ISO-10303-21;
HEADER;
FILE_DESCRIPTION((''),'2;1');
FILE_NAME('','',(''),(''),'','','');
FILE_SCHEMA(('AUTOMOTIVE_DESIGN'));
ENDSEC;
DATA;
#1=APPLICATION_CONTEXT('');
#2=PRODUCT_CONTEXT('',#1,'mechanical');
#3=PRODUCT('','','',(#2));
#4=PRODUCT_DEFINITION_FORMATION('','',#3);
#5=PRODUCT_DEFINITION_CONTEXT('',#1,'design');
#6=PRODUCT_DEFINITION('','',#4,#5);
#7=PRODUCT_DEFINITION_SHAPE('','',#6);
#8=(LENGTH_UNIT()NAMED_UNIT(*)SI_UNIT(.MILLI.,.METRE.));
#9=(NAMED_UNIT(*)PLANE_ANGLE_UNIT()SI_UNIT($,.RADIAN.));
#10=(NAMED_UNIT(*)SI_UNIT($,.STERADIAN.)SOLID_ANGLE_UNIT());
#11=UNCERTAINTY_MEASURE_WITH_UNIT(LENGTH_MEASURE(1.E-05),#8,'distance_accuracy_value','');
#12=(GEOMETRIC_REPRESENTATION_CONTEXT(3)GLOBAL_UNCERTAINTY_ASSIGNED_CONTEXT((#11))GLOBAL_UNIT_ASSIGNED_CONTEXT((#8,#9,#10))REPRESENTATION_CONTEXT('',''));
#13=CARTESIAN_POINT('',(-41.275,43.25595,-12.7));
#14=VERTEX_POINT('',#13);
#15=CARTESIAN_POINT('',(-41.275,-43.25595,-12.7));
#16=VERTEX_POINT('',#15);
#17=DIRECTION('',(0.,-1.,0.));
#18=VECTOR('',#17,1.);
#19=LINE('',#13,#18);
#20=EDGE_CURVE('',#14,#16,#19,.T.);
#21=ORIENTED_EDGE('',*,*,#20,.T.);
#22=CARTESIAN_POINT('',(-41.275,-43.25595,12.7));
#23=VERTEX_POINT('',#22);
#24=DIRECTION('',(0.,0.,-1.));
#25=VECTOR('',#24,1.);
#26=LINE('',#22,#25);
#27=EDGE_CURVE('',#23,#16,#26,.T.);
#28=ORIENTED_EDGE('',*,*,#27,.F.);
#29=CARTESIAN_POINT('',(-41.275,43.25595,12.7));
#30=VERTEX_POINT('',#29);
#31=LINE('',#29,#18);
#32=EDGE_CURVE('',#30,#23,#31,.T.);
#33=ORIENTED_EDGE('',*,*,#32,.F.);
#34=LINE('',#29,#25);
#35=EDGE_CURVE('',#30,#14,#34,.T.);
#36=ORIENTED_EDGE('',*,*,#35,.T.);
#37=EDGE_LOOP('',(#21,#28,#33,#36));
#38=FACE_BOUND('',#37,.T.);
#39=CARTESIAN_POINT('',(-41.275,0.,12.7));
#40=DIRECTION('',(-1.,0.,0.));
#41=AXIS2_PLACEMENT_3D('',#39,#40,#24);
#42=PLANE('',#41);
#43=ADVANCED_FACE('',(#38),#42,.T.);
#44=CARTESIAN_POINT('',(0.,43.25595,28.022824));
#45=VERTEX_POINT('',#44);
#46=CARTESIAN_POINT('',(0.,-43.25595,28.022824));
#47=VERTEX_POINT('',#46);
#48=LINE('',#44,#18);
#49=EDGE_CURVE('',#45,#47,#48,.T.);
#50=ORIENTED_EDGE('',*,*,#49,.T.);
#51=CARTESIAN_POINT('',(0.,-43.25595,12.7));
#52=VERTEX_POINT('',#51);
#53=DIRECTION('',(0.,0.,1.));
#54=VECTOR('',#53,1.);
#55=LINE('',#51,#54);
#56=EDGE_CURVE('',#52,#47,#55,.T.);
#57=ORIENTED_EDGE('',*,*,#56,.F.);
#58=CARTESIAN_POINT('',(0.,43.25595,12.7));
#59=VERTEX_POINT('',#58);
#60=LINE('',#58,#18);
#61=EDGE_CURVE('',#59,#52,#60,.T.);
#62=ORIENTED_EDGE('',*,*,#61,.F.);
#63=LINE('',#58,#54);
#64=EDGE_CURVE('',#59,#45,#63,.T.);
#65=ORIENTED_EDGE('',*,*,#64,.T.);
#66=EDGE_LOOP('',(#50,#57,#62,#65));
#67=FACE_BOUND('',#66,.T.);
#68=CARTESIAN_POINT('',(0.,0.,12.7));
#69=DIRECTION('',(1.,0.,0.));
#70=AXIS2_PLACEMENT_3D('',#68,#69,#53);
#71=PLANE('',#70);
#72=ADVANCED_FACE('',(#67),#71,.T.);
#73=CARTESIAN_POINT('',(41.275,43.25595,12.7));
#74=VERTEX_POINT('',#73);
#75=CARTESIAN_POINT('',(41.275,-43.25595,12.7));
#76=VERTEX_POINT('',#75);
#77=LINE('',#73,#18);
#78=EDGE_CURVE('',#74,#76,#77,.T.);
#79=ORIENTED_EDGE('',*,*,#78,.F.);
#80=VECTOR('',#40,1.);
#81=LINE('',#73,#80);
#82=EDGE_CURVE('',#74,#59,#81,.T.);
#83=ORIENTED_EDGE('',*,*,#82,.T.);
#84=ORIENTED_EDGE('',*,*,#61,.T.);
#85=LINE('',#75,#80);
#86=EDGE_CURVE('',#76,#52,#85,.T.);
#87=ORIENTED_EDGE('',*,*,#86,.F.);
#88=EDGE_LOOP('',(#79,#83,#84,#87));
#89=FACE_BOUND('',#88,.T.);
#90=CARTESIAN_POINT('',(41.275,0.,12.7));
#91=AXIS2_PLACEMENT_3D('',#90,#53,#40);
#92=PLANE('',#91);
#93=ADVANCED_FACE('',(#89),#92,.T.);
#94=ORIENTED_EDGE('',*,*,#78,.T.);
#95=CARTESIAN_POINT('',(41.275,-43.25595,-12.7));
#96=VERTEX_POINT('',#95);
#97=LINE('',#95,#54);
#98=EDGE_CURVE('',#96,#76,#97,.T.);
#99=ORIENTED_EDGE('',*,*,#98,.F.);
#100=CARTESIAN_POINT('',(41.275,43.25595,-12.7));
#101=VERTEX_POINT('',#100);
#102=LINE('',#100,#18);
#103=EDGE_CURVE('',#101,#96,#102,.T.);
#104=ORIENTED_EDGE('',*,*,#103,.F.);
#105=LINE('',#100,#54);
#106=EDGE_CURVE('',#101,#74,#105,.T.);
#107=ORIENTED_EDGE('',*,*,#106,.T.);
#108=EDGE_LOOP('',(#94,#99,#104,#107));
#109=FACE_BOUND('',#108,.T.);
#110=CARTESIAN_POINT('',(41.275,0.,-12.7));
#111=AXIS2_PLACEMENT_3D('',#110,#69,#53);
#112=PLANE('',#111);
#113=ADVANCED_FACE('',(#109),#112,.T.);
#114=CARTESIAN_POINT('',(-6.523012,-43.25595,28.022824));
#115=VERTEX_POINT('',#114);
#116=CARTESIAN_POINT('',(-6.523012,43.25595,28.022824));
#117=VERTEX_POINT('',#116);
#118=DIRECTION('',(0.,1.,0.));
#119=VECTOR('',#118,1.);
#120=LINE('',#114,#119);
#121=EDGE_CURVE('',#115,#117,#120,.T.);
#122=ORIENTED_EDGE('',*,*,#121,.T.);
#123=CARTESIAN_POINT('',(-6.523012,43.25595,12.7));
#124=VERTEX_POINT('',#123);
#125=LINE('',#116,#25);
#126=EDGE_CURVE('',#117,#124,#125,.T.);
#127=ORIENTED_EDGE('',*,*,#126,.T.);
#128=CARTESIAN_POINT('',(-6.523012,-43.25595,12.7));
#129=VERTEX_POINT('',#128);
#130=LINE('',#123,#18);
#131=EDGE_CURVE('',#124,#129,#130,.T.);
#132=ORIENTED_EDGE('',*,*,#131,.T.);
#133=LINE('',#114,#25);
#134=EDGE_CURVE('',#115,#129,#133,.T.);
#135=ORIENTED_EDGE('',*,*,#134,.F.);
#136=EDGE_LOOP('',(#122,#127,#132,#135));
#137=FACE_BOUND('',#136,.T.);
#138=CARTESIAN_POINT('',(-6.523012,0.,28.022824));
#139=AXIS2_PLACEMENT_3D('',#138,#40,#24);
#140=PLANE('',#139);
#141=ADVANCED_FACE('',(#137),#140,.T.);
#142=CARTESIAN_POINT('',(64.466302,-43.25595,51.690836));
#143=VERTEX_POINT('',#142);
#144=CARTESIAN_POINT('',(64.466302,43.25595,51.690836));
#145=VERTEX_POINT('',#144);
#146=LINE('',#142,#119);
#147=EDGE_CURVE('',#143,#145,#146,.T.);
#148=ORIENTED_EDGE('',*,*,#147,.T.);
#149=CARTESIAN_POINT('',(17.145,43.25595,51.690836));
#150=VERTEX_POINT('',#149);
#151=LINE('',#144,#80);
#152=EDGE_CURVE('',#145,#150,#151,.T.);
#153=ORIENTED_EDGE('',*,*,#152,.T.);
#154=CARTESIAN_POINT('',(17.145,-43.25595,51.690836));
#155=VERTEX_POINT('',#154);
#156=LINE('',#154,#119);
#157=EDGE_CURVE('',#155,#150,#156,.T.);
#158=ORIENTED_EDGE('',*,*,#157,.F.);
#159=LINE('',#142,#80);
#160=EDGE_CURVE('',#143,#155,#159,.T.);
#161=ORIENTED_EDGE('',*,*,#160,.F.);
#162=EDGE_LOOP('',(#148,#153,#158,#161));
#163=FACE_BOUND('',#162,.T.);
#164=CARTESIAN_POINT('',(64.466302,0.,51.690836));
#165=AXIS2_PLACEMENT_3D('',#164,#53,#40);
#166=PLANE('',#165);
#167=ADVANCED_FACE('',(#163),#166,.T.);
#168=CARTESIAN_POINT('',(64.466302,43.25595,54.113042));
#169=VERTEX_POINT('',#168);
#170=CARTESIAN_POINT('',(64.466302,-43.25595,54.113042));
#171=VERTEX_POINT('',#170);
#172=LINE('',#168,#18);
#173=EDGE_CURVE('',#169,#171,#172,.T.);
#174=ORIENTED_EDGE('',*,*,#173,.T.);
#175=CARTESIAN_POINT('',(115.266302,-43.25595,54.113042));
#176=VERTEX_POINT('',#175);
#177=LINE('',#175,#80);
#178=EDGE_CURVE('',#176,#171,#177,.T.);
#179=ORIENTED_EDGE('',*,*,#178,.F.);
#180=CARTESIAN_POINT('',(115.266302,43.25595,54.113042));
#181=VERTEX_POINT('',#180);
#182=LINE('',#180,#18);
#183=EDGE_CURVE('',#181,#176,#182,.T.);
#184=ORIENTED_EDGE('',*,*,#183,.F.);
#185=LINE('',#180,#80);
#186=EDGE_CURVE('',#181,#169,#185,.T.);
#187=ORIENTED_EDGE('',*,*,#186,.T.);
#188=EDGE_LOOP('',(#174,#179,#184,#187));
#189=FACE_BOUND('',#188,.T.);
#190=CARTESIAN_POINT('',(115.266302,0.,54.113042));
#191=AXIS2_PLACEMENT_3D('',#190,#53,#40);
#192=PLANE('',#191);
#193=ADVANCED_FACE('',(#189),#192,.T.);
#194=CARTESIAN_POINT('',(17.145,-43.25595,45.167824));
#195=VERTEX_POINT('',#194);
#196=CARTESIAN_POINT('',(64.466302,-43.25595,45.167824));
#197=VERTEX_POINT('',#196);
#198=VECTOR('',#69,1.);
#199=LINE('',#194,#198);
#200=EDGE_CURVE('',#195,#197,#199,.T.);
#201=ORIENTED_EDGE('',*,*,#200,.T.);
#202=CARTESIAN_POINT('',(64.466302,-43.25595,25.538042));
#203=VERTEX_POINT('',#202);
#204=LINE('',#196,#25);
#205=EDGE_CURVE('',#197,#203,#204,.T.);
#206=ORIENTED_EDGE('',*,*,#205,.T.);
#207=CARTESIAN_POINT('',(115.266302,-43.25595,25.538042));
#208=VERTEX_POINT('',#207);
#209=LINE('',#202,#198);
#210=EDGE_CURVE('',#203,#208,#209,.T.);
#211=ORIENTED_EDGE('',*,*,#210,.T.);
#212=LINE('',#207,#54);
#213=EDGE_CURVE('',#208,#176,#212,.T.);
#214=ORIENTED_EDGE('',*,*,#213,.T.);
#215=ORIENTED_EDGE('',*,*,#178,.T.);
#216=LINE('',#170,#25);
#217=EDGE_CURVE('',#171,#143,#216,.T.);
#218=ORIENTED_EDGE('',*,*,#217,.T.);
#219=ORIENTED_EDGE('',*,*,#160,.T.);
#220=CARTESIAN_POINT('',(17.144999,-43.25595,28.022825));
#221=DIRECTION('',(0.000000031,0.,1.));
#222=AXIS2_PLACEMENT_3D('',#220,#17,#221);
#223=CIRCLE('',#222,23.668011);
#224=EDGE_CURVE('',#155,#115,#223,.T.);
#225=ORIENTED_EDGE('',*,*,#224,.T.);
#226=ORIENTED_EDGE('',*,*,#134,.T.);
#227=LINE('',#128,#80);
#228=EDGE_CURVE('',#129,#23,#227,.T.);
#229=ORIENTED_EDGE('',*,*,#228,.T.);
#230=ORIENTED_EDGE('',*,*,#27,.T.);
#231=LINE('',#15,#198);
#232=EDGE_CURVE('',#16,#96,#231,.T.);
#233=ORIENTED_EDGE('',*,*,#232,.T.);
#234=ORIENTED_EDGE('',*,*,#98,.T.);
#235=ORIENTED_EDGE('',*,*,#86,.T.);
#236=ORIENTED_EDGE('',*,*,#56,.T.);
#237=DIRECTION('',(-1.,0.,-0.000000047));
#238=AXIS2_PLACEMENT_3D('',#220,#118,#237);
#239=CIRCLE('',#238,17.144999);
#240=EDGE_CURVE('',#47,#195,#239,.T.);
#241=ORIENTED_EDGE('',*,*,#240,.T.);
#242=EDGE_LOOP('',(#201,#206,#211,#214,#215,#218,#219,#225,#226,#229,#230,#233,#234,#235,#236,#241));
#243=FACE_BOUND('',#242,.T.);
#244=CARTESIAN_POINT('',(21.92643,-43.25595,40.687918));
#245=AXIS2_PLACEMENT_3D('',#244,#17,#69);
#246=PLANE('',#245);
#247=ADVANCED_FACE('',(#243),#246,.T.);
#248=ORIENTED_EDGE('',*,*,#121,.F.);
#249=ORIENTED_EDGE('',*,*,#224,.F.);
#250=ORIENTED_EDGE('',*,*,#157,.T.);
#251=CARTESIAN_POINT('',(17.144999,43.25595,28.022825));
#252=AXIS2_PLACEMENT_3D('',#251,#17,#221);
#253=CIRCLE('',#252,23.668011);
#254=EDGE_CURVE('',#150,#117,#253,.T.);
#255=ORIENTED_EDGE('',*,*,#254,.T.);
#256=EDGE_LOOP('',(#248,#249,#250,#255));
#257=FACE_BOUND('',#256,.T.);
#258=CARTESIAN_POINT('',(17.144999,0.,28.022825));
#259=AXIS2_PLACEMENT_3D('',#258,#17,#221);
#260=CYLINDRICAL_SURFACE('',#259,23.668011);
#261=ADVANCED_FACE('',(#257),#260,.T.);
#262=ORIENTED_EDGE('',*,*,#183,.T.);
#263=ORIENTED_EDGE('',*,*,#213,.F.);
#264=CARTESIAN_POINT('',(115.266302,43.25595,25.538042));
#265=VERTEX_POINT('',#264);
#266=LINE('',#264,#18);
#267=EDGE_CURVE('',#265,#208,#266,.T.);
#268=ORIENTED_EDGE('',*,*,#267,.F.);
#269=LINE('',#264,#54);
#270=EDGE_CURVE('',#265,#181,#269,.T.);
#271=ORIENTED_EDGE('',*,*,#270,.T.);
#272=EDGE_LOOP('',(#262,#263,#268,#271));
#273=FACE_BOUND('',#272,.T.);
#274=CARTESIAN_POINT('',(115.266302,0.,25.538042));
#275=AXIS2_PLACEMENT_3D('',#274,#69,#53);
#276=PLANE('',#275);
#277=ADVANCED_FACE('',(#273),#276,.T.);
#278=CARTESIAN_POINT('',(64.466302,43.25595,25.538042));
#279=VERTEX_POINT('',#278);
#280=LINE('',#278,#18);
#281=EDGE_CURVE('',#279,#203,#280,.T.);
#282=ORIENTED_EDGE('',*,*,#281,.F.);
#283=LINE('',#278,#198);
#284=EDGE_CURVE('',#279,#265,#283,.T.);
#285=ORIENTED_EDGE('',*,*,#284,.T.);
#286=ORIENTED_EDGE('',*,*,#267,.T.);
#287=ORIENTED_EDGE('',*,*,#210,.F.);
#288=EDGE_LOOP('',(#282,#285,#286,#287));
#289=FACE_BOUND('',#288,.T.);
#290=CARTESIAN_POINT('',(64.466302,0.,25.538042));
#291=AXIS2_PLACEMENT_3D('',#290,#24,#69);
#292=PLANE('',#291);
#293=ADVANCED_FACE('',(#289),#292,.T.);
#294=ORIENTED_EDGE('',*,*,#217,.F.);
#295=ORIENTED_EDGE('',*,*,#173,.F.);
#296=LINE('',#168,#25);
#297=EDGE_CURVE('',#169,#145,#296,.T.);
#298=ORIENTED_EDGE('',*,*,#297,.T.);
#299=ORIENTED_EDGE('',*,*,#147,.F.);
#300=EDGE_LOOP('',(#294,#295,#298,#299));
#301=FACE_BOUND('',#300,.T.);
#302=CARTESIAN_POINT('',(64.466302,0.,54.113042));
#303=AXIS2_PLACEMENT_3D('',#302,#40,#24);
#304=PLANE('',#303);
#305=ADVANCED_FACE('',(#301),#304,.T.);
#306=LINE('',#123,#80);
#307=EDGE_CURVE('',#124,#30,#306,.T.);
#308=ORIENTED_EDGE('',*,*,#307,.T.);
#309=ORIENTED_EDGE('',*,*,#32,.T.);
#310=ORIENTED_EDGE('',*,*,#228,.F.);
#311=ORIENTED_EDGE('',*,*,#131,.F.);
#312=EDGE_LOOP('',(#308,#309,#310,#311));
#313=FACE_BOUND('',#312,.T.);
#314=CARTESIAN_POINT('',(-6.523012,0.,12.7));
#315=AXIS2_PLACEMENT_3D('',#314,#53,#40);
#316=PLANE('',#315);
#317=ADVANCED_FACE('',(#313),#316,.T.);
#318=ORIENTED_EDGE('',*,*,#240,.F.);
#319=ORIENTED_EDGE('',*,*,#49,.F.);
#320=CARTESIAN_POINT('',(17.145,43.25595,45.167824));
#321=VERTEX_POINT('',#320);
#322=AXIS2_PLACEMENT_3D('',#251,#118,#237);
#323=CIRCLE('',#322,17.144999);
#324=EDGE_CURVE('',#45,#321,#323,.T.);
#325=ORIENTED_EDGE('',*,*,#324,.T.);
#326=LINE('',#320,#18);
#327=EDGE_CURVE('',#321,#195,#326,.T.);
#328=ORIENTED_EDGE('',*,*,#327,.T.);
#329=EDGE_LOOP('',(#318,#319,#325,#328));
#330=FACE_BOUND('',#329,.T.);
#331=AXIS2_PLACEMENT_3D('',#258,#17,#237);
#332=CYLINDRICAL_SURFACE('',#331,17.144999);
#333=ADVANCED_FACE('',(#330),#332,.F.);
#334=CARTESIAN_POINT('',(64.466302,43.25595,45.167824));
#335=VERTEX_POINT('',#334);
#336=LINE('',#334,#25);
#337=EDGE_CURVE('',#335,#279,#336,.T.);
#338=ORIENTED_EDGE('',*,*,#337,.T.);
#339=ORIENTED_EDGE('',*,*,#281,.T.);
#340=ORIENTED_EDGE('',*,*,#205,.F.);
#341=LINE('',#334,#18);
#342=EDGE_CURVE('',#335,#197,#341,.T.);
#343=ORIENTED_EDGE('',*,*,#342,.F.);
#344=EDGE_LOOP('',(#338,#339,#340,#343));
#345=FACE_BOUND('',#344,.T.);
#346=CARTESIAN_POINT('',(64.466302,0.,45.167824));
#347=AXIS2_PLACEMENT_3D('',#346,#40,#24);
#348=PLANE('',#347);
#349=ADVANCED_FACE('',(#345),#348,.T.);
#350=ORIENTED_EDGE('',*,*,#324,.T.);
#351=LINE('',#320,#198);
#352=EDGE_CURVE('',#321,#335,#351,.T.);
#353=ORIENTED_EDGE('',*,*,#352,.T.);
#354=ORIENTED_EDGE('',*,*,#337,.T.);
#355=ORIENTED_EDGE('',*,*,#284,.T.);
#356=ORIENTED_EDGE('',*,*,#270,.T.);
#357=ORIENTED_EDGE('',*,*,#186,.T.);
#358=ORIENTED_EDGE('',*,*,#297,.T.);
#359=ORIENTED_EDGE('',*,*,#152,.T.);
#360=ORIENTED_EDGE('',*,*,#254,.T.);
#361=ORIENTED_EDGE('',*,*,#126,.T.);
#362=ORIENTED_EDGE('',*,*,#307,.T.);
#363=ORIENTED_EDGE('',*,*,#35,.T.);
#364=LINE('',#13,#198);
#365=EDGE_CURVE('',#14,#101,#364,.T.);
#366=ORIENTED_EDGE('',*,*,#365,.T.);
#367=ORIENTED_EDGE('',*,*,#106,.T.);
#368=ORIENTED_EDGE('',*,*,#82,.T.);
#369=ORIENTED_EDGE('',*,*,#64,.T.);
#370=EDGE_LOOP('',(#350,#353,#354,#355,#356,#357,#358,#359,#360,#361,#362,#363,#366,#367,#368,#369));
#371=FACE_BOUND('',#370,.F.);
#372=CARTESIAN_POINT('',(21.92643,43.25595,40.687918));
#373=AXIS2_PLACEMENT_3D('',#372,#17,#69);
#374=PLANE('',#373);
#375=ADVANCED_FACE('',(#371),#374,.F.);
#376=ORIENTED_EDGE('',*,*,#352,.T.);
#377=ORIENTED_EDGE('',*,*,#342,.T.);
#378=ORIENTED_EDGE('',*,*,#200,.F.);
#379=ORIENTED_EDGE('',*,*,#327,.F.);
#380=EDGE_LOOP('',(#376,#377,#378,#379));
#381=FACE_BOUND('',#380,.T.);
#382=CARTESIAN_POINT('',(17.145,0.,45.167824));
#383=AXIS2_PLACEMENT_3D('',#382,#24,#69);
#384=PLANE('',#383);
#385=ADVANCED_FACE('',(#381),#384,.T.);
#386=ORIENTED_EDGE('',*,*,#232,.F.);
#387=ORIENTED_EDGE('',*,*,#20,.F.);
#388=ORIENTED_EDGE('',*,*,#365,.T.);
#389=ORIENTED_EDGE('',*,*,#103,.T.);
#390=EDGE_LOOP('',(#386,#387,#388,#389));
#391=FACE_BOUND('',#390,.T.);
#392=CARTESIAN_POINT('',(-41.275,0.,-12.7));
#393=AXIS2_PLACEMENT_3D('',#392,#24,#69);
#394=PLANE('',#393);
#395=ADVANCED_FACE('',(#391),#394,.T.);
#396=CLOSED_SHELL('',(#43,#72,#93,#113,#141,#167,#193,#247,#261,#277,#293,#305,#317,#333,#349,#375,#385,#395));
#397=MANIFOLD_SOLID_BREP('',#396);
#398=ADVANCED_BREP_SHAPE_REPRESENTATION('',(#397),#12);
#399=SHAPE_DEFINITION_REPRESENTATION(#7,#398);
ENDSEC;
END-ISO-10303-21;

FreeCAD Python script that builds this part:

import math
import FreeCAD as App
import Part
import Sketcher

V = App.Vector
Q = App.Units.Quantity

doc = App.newDocument("Part")
body = doc.addObject("PartDesign::Body", "Body")

sketch1 = body.newObject("Sketcher::SketchObject", "Sketch")
sketch1.AttachmentSupport = (doc.getObject("XZ_Plane"), [""])
sketch1.MapMode = "FlatFace"
sketch1.addGeometry([
    Part.LineSegment(V(-6.523012, 28.022824, 0), V(-6.523012, 12.7, 0)),
    Part.LineSegment(V(-6.523012, 12.7, 0), V(-41.275, 12.7, 0)),
    Part.LineSegment(V(-41.275, 12.7, 0), V(-41.275, -12.7, 0)),
    Part.LineSegment(V(-41.275, -12.7, 0), V(41.275, -12.7, 0)),
    Part.LineSegment(V(41.275, -12.7, 0), V(41.275, 12.7, 0)),
    Part.LineSegment(V(41.275, 12.7, 0), V(0, 12.7, 0)),
    Part.LineSegment(V(0, 12.7, 0), V(0, 28.022824, 0)),
    Part.ArcOfCircle(Part.Circle(V(17.144999, 28.022825, 0), V(0, 0, 1), 17.144999), math.radians(89.999997), math.radians(180.000003)),
    Part.LineSegment(V(17.145, 45.167824, 0), V(64.466302, 45.167824, 0)),
    Part.LineSegment(V(64.466302, 45.167824, 0), V(64.466302, 25.538042, 0)),
    Part.LineSegment(V(64.466302, 25.538042, 0), V(115.266302, 25.538042, 0)),
    Part.LineSegment(V(115.266302, 25.538042, 0), V(115.266302, 54.113042, 0)),
    Part.LineSegment(V(115.266302, 54.113042, 0), V(64.466302, 54.113042, 0)),
    Part.LineSegment(V(64.466302, 54.113042, 0), V(64.466302, 51.690836, 0)),
    Part.LineSegment(V(64.466302, 51.690836, 0), V(17.145, 51.690836, 0)),
    Part.ArcOfCircle(Part.Circle(V(17.144999, 28.022825, 0), V(0, 0, 1), 23.668011), math.radians(89.999998), math.radians(180.000002)),
], False)
sketch1.addConstraint([
    Sketcher.Constraint("Coincident", 0, 2, 1, 1),
    Sketcher.Constraint("Coincident", 1, 2, 2, 1),
    Sketcher.Constraint("Coincident", 2, 2, 3, 1),
    Sketcher.Constraint("Coincident", 3, 2, 4, 1),
    Sketcher.Constraint("Coincident", 4, 2, 5, 1),
    Sketcher.Constraint("Coincident", 5, 2, 6, 1),
    Sketcher.Constraint("Tangent", 6, 2, 7, 2),
    Sketcher.Constraint("Tangent", 7, 1, 8, 1),
    Sketcher.Constraint("Coincident", 8, 2, 9, 1),
    Sketcher.Constraint("Coincident", 9, 2, 10, 1),
    Sketcher.Constraint("Coincident", 10, 2, 11, 1),
    Sketcher.Constraint("Coincident", 11, 2, 12, 1),
    Sketcher.Constraint("Coincident", 12, 2, 13, 1),
    Sketcher.Constraint("Coincident", 13, 2, 14, 1),
    Sketcher.Constraint("Tangent", 14, 2, 15, 1),
    Sketcher.Constraint("Tangent", 15, 2, 0, 1),
    Sketcher.Constraint("Vertical", 0),
    Sketcher.Constraint("Horizontal", 1),
    Sketcher.Constraint("Vertical", 2),
    Sketcher.Constraint("Horizontal", 3),
    Sketcher.Constraint("Vertical", 4),
    Sketcher.Constraint("Horizontal", 5),
    Sketcher.Constraint("Vertical", 6),
    Sketcher.Constraint("Horizontal", 8),
    Sketcher.Constraint("Vertical", 9),
    Sketcher.Constraint("Horizontal", 10),
    Sketcher.Constraint("Vertical", 11),
    Sketcher.Constraint("Horizontal", 12),
    Sketcher.Constraint("Vertical", 13),
    Sketcher.Constraint("Horizontal", 14),
    Sketcher.Constraint("Coincident", 15, 3, 7, 3),
    Sketcher.Constraint("Symmetric", 1, 2, 3, 2, -1, 1),
    Sketcher.Constraint("PointOnObject", 5, 2, -2),
    Sketcher.Constraint("Horizontal", 1, 2, 4, 2),
    Sketcher.Constraint("Vertical", 9, 2, 12, 2),
    Sketcher.Constraint("DistanceX", 10, 1, 10, 2, Q("2 in")),
    Sketcher.Constraint("DistanceY", 2, 2, 2, 1, Q("1 in")),
    Sketcher.Constraint("Radius", 7, Q("0.675 in")),
    Sketcher.Constraint("DistanceX", 3, 1, 3, 2, Q("3.25 in")),
    Sketcher.Constraint("DistanceY", 11, 1, 11, 2, Q("1.125 in")),
    Sketcher.Constraint("Radius", 15, Q("23.668011 mm")),
    Sketcher.Constraint("DistanceX", -1, 1, 8, 2, Q("64.466302 mm")),
    Sketcher.Constraint("DistanceY", 0, 2, 0, 1, Q("15.322824 mm")),
    Sketcher.Constraint("DistanceY", 9, 2, 9, 1, Q("19.629782 mm")),
])
pad1 = body.newObject("PartDesign::Pad", "Pad")
pad1.Profile = sketch1
pad1.Length = 86.5119
pad1.Midplane = True

doc.recompute()
